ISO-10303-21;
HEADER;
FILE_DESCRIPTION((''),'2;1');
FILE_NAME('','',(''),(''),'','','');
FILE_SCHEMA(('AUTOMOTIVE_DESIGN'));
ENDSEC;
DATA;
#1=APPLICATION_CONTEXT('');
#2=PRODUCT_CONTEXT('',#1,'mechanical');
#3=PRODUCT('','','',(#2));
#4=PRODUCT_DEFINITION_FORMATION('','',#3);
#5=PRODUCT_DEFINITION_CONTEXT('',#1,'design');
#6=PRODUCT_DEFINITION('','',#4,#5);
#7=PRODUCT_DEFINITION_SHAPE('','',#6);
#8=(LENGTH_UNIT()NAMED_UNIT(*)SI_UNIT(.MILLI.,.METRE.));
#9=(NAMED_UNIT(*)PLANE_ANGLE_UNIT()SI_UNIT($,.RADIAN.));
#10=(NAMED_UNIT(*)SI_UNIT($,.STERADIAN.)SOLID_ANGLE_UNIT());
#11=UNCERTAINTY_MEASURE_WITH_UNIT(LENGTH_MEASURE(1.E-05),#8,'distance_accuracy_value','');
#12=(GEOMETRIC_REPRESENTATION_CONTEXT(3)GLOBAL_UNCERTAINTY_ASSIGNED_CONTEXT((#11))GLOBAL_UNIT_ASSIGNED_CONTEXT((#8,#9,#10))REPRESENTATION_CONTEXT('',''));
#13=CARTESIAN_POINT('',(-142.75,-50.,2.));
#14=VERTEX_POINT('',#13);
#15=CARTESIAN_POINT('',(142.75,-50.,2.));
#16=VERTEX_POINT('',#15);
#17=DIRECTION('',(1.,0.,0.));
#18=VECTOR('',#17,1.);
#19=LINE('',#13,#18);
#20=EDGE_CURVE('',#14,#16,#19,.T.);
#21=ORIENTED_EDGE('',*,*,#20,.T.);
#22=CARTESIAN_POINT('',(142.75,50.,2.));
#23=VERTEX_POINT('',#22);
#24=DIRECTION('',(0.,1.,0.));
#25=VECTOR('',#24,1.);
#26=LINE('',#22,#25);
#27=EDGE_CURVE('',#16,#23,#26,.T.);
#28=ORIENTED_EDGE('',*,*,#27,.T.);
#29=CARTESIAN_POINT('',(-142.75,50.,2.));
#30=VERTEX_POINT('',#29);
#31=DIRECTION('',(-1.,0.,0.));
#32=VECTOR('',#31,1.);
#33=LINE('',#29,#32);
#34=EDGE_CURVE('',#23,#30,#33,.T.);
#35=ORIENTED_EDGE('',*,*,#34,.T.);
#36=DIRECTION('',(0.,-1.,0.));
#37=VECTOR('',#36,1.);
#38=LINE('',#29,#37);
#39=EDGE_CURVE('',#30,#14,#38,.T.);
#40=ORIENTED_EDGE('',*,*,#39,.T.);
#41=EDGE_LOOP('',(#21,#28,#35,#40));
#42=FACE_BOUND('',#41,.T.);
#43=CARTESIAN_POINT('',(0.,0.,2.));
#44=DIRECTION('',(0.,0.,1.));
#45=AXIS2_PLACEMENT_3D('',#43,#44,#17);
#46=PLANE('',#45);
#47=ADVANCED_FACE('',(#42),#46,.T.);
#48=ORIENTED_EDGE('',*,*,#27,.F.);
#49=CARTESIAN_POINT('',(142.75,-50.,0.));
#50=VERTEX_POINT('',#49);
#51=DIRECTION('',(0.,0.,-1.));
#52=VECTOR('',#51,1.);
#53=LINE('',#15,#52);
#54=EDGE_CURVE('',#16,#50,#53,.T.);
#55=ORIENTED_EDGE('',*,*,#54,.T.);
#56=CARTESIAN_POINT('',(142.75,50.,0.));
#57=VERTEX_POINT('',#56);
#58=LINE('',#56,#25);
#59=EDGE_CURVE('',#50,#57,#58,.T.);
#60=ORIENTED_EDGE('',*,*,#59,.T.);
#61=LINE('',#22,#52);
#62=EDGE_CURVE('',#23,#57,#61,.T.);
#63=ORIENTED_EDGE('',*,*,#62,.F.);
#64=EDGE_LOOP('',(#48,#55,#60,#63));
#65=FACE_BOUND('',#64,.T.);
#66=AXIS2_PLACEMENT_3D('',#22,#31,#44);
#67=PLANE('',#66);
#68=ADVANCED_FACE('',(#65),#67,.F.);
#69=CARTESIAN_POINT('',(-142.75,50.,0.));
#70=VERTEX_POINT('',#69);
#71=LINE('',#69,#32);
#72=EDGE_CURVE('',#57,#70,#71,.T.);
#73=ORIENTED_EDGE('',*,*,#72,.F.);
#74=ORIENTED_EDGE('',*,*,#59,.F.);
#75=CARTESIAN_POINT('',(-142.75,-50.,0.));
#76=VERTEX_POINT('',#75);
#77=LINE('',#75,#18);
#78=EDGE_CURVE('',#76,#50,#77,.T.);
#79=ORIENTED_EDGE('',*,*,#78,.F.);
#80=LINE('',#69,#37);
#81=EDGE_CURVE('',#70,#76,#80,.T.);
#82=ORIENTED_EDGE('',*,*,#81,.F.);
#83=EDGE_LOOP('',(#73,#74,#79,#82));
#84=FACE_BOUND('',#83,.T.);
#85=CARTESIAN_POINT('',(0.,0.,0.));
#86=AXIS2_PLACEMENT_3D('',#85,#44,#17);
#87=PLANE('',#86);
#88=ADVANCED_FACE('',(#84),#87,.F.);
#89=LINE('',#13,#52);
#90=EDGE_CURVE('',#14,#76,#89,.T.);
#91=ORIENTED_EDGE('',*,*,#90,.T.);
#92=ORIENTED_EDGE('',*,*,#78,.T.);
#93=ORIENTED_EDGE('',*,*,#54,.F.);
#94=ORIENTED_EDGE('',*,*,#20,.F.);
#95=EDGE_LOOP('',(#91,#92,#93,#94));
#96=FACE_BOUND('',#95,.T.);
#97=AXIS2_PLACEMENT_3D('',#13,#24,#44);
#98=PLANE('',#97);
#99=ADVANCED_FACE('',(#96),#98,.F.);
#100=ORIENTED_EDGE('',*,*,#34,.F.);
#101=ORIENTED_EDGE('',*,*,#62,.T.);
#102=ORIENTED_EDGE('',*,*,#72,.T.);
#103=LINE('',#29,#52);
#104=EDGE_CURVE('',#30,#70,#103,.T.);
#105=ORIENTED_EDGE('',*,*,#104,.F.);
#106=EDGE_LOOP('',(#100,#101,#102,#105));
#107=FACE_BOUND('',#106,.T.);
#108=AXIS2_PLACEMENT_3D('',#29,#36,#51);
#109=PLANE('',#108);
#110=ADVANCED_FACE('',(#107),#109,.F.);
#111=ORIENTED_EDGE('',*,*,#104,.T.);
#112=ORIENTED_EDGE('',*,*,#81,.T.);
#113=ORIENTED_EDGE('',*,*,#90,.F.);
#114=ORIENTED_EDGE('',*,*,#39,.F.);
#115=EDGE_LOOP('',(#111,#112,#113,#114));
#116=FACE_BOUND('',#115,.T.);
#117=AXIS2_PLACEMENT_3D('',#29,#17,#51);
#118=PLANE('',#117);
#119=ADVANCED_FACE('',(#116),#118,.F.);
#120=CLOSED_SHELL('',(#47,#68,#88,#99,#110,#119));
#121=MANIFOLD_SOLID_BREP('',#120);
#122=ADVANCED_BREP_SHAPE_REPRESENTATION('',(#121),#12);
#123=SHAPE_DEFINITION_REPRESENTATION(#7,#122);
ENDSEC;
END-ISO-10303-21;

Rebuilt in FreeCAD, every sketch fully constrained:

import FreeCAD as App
import Part
import Sketcher


def add_polygon(sketch, points):
    """Adds a closed chain of lines whose ends are joined by coincident constraints."""
    first, n = sketch.GeometryCount, len(points)
    for a, b in zip(points, points[1:] + points[:1]):
        sketch.addGeometry(Part.LineSegment(App.Vector(*a, 0), App.Vector(*b, 0)), False)
    for i in range(n):
        sketch.addConstraint(Sketcher.Constraint("Coincident", first + i, 2, first + (i + 1) % n, 1))

doc = App.newDocument("Part")
body = doc.addObject("PartDesign::Body", "Body")

sketch1 = body.newObject("Sketcher::SketchObject", "Sketch")
sketch1.AttachmentSupport = (doc.getObject("XY_Plane"), [""])
sketch1.MapMode = "FlatFace"
add_polygon(sketch1, [(-142.75, 50), (-142.75, -50), (142.75, -50), (142.75, 50)])
sketch1.addConstraint([
    Sketcher.Constraint("Vertical", 0),
    Sketcher.Constraint("Horizontal", 1),
    Sketcher.Constraint("Vertical", 2),
    Sketcher.Constraint("Horizontal", 3),
    Sketcher.Constraint("Symmetric", 0, 2, 2, 2, -1, 1),
    Sketcher.Constraint("DistanceY", 0, 2, 0, 1, 100.0),
    Sketcher.Constraint("DistanceX", 1, 1, 1, 2, 285.5),
])
pad1 = body.newObject("PartDesign::Pad", "Pad")
pad1.Profile = sketch1
pad1.Length = 2

doc.recompute()
